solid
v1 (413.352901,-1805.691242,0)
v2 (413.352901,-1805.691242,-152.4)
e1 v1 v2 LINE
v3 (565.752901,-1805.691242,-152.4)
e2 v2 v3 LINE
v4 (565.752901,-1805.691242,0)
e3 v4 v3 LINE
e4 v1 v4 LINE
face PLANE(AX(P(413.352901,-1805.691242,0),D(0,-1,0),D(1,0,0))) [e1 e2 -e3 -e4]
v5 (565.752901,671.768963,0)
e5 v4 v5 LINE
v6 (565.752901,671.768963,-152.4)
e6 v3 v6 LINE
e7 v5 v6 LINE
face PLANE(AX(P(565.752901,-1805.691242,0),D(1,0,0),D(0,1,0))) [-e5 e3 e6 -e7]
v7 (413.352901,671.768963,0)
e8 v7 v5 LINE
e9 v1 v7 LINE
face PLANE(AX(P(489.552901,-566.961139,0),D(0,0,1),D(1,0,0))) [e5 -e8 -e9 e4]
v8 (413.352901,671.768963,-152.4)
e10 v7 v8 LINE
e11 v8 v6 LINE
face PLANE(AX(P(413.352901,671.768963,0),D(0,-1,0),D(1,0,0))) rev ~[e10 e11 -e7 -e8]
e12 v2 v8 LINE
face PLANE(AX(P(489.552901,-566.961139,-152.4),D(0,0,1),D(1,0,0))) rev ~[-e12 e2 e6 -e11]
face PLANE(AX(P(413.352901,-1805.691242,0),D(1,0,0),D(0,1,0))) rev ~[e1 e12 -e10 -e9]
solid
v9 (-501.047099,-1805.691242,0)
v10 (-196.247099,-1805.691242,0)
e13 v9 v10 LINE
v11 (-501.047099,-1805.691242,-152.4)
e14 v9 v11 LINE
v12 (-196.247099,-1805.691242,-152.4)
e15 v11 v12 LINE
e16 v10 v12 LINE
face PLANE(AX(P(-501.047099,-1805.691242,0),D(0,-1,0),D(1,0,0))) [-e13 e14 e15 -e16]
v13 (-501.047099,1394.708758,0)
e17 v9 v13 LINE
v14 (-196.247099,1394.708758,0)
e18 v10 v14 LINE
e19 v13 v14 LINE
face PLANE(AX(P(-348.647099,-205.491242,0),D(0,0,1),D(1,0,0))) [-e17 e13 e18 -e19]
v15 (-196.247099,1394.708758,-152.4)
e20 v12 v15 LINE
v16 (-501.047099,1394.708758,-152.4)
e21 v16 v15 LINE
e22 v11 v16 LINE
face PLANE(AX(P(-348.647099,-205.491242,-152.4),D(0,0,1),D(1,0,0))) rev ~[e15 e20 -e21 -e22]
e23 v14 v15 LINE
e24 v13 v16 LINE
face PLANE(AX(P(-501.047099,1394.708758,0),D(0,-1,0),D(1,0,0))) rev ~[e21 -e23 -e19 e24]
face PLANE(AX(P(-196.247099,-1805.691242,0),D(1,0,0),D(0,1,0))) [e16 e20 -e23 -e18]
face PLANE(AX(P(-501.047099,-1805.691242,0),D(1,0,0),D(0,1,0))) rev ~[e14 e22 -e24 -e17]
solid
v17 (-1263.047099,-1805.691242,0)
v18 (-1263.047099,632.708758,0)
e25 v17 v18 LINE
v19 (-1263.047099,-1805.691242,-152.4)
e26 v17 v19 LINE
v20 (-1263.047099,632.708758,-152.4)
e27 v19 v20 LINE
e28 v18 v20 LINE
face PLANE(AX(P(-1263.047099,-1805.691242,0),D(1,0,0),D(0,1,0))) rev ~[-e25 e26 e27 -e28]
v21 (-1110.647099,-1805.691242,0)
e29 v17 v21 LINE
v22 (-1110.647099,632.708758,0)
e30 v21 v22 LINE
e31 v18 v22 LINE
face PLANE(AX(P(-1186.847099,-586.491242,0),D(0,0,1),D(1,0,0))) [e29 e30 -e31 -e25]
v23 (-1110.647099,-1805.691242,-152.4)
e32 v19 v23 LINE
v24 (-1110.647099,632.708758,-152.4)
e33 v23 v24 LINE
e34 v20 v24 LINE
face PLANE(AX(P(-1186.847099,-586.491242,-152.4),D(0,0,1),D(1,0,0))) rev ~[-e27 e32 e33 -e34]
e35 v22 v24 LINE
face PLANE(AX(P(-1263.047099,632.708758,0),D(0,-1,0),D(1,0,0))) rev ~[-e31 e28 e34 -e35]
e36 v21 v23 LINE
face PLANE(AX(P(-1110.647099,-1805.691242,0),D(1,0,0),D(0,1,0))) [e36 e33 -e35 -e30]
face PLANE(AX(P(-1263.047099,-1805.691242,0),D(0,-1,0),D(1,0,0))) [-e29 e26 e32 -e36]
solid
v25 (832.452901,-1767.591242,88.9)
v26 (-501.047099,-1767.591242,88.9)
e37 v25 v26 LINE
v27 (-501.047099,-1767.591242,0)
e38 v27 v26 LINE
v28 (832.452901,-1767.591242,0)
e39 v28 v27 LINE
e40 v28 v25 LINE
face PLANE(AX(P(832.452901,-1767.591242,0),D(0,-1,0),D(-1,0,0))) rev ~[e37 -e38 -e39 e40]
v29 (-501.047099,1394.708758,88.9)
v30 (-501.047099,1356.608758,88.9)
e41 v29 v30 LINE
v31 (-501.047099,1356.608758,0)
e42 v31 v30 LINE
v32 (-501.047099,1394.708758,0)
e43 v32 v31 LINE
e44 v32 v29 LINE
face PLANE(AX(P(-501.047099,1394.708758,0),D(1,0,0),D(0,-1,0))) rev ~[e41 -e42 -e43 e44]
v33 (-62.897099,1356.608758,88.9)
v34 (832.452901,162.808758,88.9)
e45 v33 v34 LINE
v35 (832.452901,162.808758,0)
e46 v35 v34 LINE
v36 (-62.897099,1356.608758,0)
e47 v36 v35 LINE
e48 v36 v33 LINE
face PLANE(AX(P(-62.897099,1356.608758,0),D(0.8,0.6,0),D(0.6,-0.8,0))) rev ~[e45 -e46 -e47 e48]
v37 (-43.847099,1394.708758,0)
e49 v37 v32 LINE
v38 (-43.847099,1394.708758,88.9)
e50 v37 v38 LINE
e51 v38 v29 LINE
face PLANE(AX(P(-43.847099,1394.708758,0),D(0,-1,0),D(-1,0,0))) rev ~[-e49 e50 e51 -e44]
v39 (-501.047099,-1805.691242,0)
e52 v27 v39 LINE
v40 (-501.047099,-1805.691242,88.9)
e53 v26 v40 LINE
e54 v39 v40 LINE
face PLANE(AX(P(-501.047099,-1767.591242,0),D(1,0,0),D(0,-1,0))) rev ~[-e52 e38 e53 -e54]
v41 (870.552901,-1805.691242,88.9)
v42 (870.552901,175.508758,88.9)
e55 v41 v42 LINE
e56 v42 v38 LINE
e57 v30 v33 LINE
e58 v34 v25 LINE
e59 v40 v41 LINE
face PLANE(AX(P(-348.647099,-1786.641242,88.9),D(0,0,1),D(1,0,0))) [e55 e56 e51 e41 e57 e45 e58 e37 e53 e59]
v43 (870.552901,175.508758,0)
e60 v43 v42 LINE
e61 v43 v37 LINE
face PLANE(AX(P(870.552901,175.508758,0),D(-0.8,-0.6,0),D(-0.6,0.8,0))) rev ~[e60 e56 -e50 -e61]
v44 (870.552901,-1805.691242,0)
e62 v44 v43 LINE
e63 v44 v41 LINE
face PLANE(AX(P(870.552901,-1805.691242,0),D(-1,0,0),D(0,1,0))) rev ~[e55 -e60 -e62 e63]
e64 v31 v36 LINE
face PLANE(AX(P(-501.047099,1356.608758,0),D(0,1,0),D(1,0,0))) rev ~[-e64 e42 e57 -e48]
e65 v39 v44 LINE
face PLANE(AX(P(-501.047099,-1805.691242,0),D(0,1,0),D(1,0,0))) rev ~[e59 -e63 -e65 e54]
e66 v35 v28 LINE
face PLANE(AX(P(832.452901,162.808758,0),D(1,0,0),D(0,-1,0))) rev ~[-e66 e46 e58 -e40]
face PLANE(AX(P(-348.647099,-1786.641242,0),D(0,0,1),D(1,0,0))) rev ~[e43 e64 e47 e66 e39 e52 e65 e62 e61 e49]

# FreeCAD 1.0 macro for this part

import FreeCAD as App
import Part
import Sketcher
Q = App.Units.Quantity

doc = App.newDocument("Part")
body = doc.addObject("PartDesign::Body", "Body")

# Sketch on XY plane
sketch1 = body.newObject("Sketcher::SketchObject", "Sketch")
sketch1.AttachmentSupport = (doc.getObject("XY_Plane"), [""])
sketch1.MapMode = "FlatFace"
sketch1.addGeometry(Part.LineSegment(App.Vector(-501, 1395, 0), App.Vector(-501, -1806, 0)), False)
sketch1.addGeometry(Part.LineSegment(App.Vector(-501, -1806, 0), App.Vector(-196, -1806, 0)), False)
sketch1.addGeometry(Part.LineSegment(App.Vector(-196, -1806, 0), App.Vector(-196, 1395, 0)), False)
sketch1.addGeometry(Part.LineSegment(App.Vector(-196, 1395, 0), App.Vector(-501, 1395, 0)), False)
sketch1.addConstraint(Sketcher.Constraint("Coincident", 0, 2, 1, 1))
sketch1.addConstraint(Sketcher.Constraint("Coincident", 1, 2, 2, 1))
sketch1.addConstraint(Sketcher.Constraint("Coincident", 2, 2, 3, 1))
sketch1.addConstraint(Sketcher.Constraint("Coincident", 3, 2, 0, 1))
sketch1.addConstraint(Sketcher.Constraint("Vertical", 0))
sketch1.addConstraint(Sketcher.Constraint("Horizontal", 1))
sketch1.addConstraint(Sketcher.Constraint("Vertical", 2))
sketch1.addConstraint(Sketcher.Constraint("Horizontal", 3))
sketch1.addConstraint(Sketcher.Constraint("DistanceX", 1, 1, 1, 2, Q("12 in")))
sketch1.addConstraint(Sketcher.Constraint("DistanceY", 0, 2, 0, 1, Q("126 in")))
sketch1.addConstraint(Sketcher.Constraint("DistanceX", 0, 2, -1, 1, Q("501.047099 mm")))
sketch1.addConstraint(Sketcher.Constraint("DistanceY", 0, 2, -1, 1, Q("1805.691242 mm")))
pad1 = body.newObject("PartDesign::Pad", "Pad")
pad1.Profile = sketch1
pad1.Length = Q("6 in")
pad1.Reversed = True
body2 = doc.addObject("PartDesign::Body", "Body001")

# Sketch on XY plane
sketch2 = body2.newObject("Sketcher::SketchObject", "Sketch001")
sketch2.AttachmentSupport = (doc.getObject("XY_Plane001"), [""])
sketch2.MapMode = "FlatFace"
sketch2.addGeometry(Part.LineSegment(App.Vector(-1263, 633, 0), App.Vector(-1263, -1806, 0)), False)
sketch2.addGeometry(Part.LineSegment(App.Vector(-1263, -1806, 0), App.Vector(-1111, -1806, 0)), False)
sketch2.addGeometry(Part.LineSegment(App.Vector(-1111, -1806, 0), App.Vector(-1111, 633, 0)), False)
sketch2.addGeometry(Part.LineSegment(App.Vector(-1111, 633, 0), App.Vector(-1263, 633, 0)), False)
sketch2.addConstraint(Sketcher.Constraint("Coincident", 0, 2, 1, 1))
sketch2.addConstraint(Sketcher.Constraint("Coincident", 1, 2, 2, 1))
sketch2.addConstraint(Sketcher.Constraint("Coincident", 2, 2, 3, 1))
sketch2.addConstraint(Sketcher.Constraint("Coincident", 3, 2, 0, 1))
sketch2.addConstraint(Sketcher.Constraint("Vertical", 0))
sketch2.addConstraint(Sketcher.Constraint("Horizontal", 1))
sketch2.addConstraint(Sketcher.Constraint("Vertical", 2))
sketch2.addConstraint(Sketcher.Constraint("Horizontal", 3))
sketch2.addConstraint(Sketcher.Constraint("DistanceX", 1, 1, 1, 2, Q("6 in")))
sketch2.addConstraint(Sketcher.Constraint("DistanceY", 0, 2, 0, 1, Q("96 in")))
sketch2.addConstraint(Sketcher.Constraint("DistanceX", 0, 2, -1, 1, Q("1263.047099 mm")))
sketch2.addConstraint(Sketcher.Constraint("DistanceY", 0, 2, -1, 1, Q("1805.691242 mm")))
pad2 = body2.newObject("PartDesign::Pad", "Pad001")
pad2.Profile = sketch2
pad2.Length = Q("6 in")
pad2.Reversed = True
body3 = doc.addObject("PartDesign::Body", "Body002")

# Sketch on XY plane
sketch3 = body3.newObject("Sketcher::SketchObject", "Sketch002")
sketch3.AttachmentSupport = (doc.getObject("XY_Plane002"), [""])
sketch3.MapMode = "FlatFace"
sketch3.addGeometry(Part.LineSegment(App.Vector(413, 672, 0), App.Vector(413, -1806, 0)), False)
sketch3.addGeometry(Part.LineSegment(App.Vector(413, -1806, 0), App.Vector(566, -1806, 0)), False)
sketch3.addGeometry(Part.LineSegment(App.Vector(566, -1806, 0), App.Vector(566, 672, 0)), False)
sketch3.addGeometry(Part.LineSegment(App.Vector(566, 672, 0), App.Vector(413, 672, 0)), False)
sketch3.addConstraint(Sketcher.Constraint("Coincident", 0, 2, 1, 1))
sketch3.addConstraint(Sketcher.Constraint("Coincident", 1, 2, 2, 1))
sketch3.addConstraint(Sketcher.Constraint("Coincident", 2, 2, 3, 1))
sketch3.addConstraint(Sketcher.Constraint("Coincident", 3, 2, 0, 1))
sketch3.addConstraint(Sketcher.Constraint("Vertical", 0))
sketch3.addConstraint(Sketcher.Constraint("Horizontal", 1))
sketch3.addConstraint(Sketcher.Constraint("Vertical", 2))
sketch3.addConstraint(Sketcher.Constraint("Horizontal", 3))
sketch3.addConstraint(Sketcher.Constraint("DistanceX", 1, 1, 1, 2, Q("6 in")))
sketch3.addConstraint(Sketcher.Constraint("DistanceX", -1, 1, 0, 2, Q("413.352901 mm")))
sketch3.addConstraint(Sketcher.Constraint("DistanceY", 0, 2, 0, 1, Q("2477.460206 mm")))
sketch3.addConstraint(Sketcher.Constraint("DistanceY", 0, 2, -1, 1, Q("1805.691242 mm")))
pad3 = body3.newObject("PartDesign::Pad", "Pad002")
pad3.Profile = sketch3
pad3.Length = Q("6 in")
pad3.Reversed = True
body4 = doc.addObject("PartDesign::Body", "Body003")

# Sketch on XY plane
sketch4 = body4.newObject("Sketcher::SketchObject", "Sketch003")
sketch4.AttachmentSupport = (doc.getObject("XY_Plane003"), [""])
sketch4.MapMode = "FlatFace"
sketch4.addGeometry(Part.LineSegment(App.Vector(-501, -1806, 0), App.Vector(871, -1806, 0)), False)
sketch4.addGeometry(Part.LineSegment(App.Vector(871, -1806, 0), App.Vector(871, 176, 0)), False)
sketch4.addGeometry(Part.LineSegment(App.Vector(871, 176, 0), App.Vector(-44, 1395, 0)), False)
sketch4.addGeometry(Part.LineSegment(App.Vector(-44, 1395, 0), App.Vector(-501, 1395, 0)), False)
sketch4.addGeometry(Part.LineSegment(App.Vector(-501, 1395, 0), App.Vector(-501, 1357, 0)), False)
sketch4.addGeometry(Part.LineSegment(App.Vector(-501, 1357, 0), App.Vector(-63, 1357, 0)), False)
sketch4.addGeometry(Part.LineSegment(App.Vector(-63, 1357, 0), App.Vector(832, 163, 0)), False)
sketch4.addGeometry(Part.LineSegment(App.Vector(832, 163, 0), App.Vector(832, -1768, 0)), False)
sketch4.addGeometry(Part.LineSegment(App.Vector(832, -1768, 0), App.Vector(-501, -1768, 0)), False)
sketch4.addGeometry(Part.LineSegment(App.Vector(-501, -1768, 0), App.Vector(-501, -1806, 0)), False)
sketch4.addConstraint(Sketcher.Constraint("Coincident", 0, 2, 1, 1))
sketch4.addConstraint(Sketcher.Constraint("Coincident", 1, 2, 2, 1))
sketch4.addConstraint(Sketcher.Constraint("Coincident", 2, 2, 3, 1))
sketch4.addConstraint(Sketcher.Constraint("Coincident", 3, 2, 4, 1))
sketch4.addConstraint(Sketcher.Constraint("Coincident", 4, 2, 5, 1))
sketch4.addConstraint(Sketcher.Constraint("Coincident", 5, 2, 6, 1))
sketch4.addConstraint(Sketcher.Constraint("Coincident", 6, 2, 7, 1))
sketch4.addConstraint(Sketcher.Constraint("Coincident", 7, 2, 8, 1))
sketch4.addConstraint(Sketcher.Constraint("Coincident", 8, 2, 9, 1))
sketch4.addConstraint(Sketcher.Constraint("Coincident", 9, 2, 0, 1))
sketch4.addConstraint(Sketcher.Constraint("Horizontal", 0))
sketch4.addConstraint(Sketcher.Constraint("Vertical", 1))
sketch4.addConstraint(Sketcher.Constraint("Horizontal", 3))
sketch4.addConstraint(Sketcher.Constraint("Vertical", 4))
sketch4.addConstraint(Sketcher.Constraint("Horizontal", 5))
sketch4.addConstraint(Sketcher.Constraint("Vertical", 7))
sketch4.addConstraint(Sketcher.Constraint("Horizontal", 8))
sketch4.addConstraint(Sketcher.Constraint("Vertical", 9))
sketch4.addConstraint(Sketcher.Constraint("Parallel", 2, 6))
sketch4.addConstraint(Sketcher.Constraint("Vertical", 4, 2, 8, 2))
sketch4.addConstraint(Sketcher.Constraint("Equal", 4, 9))
sketch4.addConstraint(Sketcher.Constraint("DistanceX", 0, 1, 0, 2, Q("54 in")))
sketch4.addConstraint(Sketcher.Constraint("DistanceX", 3, 2, 3, 1, Q("18 in")))
sketch4.addConstraint(Sketcher.Constraint("DistanceY", 1, 1, 1, 2, Q("78 in")))
sketch4.addConstraint(Sketcher.Constraint("DistanceY", 7, 2, 7, 1, Q("76 in")))
sketch4.addConstraint(Sketcher.Constraint("Distance", 2, Q("60 in")))
sketch4.addConstraint(Sketcher.Constraint("DistanceX", 8, 2, 8, 1, Q("52.5 in")))
sketch4.addConstraint(Sketcher.Constraint("DistanceY", 4, 2, 4, 1, Q("1.5 in")))
sketch4.addConstraint(Sketcher.Constraint("DistanceX", -1, 1, 0, 2, Q("870.552901 mm")))
sketch4.addConstraint(Sketcher.Constraint("DistanceY", 0, 2, -1, 1, Q("1805.691242 mm")))
pad4 = body4.newObject("PartDesign::Pad", "Pad003")
pad4.Profile = sketch4
pad4.Length = Q("3.5 in")

doc.recompute()
